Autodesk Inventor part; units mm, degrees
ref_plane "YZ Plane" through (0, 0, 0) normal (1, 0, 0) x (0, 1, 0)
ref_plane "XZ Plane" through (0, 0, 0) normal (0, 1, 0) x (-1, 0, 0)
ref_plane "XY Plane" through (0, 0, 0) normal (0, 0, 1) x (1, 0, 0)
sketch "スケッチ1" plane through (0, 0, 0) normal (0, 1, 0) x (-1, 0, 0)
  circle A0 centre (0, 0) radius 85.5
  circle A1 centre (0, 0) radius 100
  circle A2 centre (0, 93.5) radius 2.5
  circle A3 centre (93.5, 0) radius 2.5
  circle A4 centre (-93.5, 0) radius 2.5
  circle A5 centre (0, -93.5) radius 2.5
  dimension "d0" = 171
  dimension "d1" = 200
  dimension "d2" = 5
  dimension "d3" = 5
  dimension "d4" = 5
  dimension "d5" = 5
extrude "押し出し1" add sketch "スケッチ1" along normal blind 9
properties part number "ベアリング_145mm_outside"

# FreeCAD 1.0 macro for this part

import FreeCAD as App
import Part
import Sketcher

doc = App.newDocument("Part")
body = doc.addObject("PartDesign::Body", "Body")

# Sketch on XZ plane
sketch1 = body.newObject("Sketcher::SketchObject", "Sketch")
sketch1.AttachmentSupport = (doc.getObject("XZ_Plane"), [""])
sketch1.MapMode = "FlatFace"
sketch1.addGeometry(Part.Circle(App.Vector(0, 0, 0), App.Vector(0, 0, 1), 100), False)
sketch1.addGeometry(Part.Circle(App.Vector(0, -93.5, 0), App.Vector(0, 0, 1), 2.5), False)
sketch1.addGeometry(Part.Circle(App.Vector(93.5, 0, 0), App.Vector(0, 0, 1), 2.5), False)
sketch1.addGeometry(Part.Circle(App.Vector(0, 0, 0), App.Vector(0, 0, 1), 85.5), False)
sketch1.addGeometry(Part.Circle(App.Vector(-93.5, 0, 0), App.Vector(0, 0, 1), 2.5), False)
sketch1.addGeometry(Part.Circle(App.Vector(0, 93.5, 0), App.Vector(0, 0, 1), 2.5), False)
sketch1.addConstraint(Sketcher.Constraint("Coincident", 0, 3, -1, 1))
sketch1.addConstraint(Sketcher.Constraint("Coincident", 3, 3, -1, 1))
sketch1.addConstraint(Sketcher.Constraint("Equal", 1, 2))
sketch1.addConstraint(Sketcher.Constraint("Equal", 2, 4))
sketch1.addConstraint(Sketcher.Constraint("Equal", 4, 5))
sketch1.addConstraint(Sketcher.Constraint("Symmetric", 2, 3, 4, 3, -1, 1))
sketch1.addConstraint(Sketcher.Constraint("Symmetric", 1, 3, 5, 3, -1, 1))
sketch1.addConstraint(Sketcher.Constraint("PointOnObject", 1, 3, -2))
sketch1.addConstraint(Sketcher.Constraint("PointOnObject", 2, 3, -1))
sketch1.addConstraint(Sketcher.Constraint("Diameter", 0, 200.0))
sketch1.addConstraint(Sketcher.Constraint("Diameter", 1, 5.0))
sketch1.addConstraint(Sketcher.Constraint("Diameter", 3, 171.0))
sketch1.addConstraint(Sketcher.Constraint("DistanceX", 4, 3, 2, 3, 187.0))
sketch1.addConstraint(Sketcher.Constraint("DistanceY", 1, 3, 5, 3, 187.0))
pad1 = body.newObject("PartDesign::Pad", "Pad")
pad1.Profile = sketch1
pad1.Length = 9
pad1.Reversed = True

doc.recompute()
